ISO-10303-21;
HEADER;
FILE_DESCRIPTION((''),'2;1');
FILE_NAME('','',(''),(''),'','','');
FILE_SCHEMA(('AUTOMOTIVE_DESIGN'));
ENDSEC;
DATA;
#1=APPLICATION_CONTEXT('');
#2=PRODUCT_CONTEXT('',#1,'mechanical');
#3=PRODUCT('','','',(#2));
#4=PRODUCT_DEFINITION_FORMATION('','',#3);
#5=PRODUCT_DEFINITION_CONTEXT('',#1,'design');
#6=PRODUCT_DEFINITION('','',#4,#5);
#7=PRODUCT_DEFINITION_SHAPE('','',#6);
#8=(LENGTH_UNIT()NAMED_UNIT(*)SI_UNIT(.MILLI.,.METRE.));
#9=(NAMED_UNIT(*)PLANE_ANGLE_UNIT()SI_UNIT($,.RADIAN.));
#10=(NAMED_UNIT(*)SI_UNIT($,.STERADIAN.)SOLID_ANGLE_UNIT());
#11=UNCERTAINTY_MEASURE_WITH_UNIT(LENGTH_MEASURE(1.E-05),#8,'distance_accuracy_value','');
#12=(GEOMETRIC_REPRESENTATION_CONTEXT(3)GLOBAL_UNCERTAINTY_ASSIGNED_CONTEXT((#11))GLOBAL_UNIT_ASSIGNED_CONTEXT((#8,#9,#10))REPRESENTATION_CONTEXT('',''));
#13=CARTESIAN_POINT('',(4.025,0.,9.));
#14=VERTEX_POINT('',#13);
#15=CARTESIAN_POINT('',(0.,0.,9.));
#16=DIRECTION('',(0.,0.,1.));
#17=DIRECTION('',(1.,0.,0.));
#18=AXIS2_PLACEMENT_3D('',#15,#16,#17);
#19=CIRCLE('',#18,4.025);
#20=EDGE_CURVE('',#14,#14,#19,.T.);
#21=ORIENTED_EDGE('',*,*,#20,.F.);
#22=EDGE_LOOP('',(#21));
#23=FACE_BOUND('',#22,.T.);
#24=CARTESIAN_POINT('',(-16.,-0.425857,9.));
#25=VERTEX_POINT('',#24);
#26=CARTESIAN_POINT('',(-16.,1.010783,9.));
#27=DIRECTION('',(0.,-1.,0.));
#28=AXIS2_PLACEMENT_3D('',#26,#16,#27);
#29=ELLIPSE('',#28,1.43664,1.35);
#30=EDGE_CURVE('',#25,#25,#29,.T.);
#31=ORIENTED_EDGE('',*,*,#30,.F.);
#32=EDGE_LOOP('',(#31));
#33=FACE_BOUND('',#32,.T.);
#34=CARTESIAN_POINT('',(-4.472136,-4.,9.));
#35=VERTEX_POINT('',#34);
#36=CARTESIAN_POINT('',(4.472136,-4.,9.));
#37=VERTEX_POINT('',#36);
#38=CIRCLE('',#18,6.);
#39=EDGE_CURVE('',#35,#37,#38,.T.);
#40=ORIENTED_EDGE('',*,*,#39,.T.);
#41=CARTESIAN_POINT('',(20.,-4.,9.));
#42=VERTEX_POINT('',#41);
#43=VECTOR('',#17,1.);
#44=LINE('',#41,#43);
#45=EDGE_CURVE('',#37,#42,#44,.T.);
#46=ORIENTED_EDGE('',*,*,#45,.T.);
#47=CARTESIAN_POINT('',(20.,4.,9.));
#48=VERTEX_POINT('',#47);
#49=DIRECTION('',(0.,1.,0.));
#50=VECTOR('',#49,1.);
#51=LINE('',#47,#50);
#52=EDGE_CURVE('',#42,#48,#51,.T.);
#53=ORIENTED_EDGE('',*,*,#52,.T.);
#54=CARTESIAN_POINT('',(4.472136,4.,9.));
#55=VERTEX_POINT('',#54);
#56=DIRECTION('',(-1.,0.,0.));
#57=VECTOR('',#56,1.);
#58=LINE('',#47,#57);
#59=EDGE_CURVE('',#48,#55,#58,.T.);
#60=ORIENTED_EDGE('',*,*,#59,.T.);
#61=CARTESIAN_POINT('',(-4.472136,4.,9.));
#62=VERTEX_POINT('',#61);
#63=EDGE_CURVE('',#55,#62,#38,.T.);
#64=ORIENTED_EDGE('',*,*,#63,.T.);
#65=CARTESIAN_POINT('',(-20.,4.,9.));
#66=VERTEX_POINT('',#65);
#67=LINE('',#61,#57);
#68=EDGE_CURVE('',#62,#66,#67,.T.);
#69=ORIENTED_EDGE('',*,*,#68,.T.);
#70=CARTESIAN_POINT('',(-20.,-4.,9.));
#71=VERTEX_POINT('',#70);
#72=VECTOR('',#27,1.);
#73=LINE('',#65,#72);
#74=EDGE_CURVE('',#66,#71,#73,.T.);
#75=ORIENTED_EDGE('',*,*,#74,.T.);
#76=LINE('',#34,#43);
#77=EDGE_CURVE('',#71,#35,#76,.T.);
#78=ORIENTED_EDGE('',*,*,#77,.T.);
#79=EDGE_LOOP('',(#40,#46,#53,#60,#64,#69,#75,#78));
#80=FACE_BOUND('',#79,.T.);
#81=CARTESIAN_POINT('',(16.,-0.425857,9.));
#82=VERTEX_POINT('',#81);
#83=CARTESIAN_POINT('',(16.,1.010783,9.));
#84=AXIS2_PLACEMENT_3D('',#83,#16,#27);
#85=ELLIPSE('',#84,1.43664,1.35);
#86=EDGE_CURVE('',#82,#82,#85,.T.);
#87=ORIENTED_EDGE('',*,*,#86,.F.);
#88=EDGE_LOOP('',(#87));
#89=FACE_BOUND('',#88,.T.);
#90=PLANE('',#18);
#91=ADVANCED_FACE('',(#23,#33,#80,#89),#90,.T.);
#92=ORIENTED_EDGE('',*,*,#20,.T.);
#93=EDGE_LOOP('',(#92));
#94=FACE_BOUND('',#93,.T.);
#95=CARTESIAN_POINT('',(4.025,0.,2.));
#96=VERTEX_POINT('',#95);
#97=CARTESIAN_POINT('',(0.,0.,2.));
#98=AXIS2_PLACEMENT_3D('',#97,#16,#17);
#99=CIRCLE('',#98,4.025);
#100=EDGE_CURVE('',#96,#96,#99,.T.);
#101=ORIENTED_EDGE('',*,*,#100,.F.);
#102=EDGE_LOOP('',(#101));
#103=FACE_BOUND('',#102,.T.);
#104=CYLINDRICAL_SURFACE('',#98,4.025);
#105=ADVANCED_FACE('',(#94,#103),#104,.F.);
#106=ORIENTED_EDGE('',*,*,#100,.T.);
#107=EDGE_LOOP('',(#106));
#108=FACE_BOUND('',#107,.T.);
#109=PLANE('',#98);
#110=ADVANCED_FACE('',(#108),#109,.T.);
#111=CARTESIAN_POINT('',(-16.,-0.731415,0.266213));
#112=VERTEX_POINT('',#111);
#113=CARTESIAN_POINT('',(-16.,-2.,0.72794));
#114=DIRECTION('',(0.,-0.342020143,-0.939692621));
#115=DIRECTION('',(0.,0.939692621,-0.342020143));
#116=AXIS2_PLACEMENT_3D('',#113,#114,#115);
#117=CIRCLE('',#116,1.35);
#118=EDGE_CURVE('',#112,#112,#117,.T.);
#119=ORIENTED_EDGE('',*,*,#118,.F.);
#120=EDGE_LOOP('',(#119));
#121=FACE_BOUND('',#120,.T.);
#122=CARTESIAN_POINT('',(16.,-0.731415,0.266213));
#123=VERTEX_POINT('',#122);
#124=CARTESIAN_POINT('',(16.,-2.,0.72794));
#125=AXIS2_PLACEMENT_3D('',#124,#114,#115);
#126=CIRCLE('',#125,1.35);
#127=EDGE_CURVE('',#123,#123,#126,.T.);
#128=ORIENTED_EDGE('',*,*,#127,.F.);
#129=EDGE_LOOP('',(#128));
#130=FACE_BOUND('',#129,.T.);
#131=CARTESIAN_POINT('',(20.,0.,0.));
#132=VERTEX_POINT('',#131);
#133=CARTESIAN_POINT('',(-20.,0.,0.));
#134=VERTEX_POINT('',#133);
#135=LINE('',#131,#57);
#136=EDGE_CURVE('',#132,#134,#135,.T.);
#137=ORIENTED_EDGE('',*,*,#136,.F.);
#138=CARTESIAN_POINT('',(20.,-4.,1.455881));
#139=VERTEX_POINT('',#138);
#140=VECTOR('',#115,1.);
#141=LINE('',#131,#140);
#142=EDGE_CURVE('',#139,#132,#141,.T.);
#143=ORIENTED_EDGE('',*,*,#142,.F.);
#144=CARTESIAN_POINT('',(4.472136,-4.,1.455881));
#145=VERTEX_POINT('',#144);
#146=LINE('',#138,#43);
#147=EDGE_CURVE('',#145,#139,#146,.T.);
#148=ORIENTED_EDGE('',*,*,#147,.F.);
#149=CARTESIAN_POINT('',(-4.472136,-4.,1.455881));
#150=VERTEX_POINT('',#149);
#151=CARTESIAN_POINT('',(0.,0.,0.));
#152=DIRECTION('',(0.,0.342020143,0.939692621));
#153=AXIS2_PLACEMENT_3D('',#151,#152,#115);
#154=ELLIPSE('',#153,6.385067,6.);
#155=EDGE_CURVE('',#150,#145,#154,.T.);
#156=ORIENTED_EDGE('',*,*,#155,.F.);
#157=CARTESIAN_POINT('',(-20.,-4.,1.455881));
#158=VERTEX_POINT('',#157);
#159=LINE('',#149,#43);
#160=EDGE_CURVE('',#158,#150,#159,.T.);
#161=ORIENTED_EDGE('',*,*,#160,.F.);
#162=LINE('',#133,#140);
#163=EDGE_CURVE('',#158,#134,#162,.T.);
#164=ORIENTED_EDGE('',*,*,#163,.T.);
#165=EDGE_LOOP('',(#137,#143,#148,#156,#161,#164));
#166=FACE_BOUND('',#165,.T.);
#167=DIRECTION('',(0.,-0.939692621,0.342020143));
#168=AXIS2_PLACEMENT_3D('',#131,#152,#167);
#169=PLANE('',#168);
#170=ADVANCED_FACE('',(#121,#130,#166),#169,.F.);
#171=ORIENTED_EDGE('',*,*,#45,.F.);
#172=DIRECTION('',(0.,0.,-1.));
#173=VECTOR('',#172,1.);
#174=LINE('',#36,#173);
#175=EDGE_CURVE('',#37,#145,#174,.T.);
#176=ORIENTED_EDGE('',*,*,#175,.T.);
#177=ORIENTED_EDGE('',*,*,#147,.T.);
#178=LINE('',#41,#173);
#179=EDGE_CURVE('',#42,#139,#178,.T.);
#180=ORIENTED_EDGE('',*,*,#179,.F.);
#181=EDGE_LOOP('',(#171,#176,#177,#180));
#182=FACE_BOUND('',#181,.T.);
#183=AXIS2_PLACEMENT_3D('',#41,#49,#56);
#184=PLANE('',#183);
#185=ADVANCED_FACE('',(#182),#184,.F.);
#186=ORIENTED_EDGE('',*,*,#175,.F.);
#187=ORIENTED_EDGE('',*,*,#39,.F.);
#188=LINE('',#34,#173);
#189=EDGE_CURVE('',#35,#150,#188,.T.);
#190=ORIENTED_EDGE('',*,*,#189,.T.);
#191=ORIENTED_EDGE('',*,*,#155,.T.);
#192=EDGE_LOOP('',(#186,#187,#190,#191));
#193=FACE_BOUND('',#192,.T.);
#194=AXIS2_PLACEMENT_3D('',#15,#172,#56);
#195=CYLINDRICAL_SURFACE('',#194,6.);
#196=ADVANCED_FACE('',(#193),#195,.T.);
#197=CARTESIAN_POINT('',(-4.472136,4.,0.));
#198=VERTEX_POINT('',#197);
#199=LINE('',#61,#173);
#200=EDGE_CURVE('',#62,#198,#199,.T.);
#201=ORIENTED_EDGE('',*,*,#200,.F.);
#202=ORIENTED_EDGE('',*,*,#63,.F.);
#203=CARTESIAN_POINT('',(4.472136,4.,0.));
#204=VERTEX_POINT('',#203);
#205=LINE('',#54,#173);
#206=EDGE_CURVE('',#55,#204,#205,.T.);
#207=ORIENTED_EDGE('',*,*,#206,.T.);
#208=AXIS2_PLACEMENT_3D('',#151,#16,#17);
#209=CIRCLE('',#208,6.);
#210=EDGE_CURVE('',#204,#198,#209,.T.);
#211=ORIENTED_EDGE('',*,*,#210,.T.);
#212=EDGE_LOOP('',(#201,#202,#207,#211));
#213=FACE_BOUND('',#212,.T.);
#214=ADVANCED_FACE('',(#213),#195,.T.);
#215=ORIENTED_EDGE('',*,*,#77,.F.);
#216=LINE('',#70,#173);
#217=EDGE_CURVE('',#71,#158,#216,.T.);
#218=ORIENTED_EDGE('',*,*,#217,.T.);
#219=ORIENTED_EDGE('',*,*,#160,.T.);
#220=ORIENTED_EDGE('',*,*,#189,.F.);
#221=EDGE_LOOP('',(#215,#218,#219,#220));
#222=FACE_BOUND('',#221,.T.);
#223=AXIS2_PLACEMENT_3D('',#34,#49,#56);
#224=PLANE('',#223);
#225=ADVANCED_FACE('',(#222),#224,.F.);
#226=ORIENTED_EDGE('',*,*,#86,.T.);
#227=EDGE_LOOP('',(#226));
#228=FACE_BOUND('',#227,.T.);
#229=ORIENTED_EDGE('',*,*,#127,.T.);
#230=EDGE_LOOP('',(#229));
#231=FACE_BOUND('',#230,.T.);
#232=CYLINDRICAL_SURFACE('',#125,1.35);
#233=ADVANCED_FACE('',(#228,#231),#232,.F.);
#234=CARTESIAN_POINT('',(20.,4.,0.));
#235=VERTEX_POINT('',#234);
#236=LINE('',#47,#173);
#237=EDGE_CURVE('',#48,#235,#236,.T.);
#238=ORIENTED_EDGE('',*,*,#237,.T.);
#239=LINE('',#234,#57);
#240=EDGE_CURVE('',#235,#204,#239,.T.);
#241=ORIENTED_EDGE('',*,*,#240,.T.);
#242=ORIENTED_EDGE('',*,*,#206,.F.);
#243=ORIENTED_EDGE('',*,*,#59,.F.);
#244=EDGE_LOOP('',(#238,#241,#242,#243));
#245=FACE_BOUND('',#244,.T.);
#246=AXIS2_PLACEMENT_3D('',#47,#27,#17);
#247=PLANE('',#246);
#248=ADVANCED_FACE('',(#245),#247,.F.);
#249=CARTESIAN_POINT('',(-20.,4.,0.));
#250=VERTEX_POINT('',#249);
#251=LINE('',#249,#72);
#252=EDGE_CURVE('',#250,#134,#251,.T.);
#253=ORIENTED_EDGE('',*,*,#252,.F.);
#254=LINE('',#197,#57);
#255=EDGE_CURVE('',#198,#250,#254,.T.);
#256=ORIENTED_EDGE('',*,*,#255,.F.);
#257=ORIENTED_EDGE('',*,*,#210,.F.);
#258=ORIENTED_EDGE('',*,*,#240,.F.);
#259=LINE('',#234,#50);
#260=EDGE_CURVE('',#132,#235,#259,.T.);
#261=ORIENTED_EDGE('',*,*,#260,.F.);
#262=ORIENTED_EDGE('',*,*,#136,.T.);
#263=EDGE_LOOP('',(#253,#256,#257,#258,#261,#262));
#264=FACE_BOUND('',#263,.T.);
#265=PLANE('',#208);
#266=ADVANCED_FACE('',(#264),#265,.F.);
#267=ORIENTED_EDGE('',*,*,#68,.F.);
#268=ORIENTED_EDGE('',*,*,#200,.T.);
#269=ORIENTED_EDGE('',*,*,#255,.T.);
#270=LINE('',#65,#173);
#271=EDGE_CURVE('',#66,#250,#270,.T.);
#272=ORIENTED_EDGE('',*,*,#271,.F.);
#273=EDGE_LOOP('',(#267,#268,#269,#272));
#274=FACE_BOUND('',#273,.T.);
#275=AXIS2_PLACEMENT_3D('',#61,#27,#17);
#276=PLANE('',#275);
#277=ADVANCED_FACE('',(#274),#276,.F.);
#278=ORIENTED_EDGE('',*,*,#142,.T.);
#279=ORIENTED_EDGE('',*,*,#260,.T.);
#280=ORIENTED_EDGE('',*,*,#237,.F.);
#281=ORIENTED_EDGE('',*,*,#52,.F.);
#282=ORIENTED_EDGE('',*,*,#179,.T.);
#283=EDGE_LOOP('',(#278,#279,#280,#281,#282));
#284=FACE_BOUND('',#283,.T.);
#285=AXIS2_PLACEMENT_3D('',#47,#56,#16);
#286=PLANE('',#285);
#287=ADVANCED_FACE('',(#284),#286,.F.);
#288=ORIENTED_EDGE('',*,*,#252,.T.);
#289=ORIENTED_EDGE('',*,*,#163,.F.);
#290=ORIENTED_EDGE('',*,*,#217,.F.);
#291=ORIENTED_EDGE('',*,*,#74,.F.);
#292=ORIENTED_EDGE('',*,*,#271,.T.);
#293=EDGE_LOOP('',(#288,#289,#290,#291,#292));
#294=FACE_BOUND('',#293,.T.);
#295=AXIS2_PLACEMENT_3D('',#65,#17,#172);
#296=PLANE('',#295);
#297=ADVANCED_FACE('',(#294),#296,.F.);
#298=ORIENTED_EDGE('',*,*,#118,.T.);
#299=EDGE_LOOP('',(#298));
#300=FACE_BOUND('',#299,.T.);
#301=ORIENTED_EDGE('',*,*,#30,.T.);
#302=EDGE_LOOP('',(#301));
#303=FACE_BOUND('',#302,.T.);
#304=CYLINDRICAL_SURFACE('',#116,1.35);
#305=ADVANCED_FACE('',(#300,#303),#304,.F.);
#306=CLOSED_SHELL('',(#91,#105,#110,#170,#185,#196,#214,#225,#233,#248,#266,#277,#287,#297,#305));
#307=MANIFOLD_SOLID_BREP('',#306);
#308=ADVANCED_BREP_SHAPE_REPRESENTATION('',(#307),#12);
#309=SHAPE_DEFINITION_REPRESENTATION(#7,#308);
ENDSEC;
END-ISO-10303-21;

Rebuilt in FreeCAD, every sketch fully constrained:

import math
import FreeCAD as App
import Part
import Sketcher
Q = App.Units.Quantity


def add_polygon(sketch, points):
    """Adds a closed chain of lines whose ends are joined by coincident constraints."""
    first, n = sketch.GeometryCount, len(points)
    for a, b in zip(points, points[1:] + points[:1]):
        sketch.addGeometry(Part.LineSegment(App.Vector(*a, 0), App.Vector(*b, 0)), False)
    for i in range(n):
        sketch.addConstraint(Sketcher.Constraint("Coincident", first + i, 2, first + (i + 1) % n, 1))

doc = App.newDocument("Part")
body = doc.addObject("PartDesign::Body", "Body")

# Sketch on XY plane
sketch1 = doc.addObject("Sketcher::SketchObject", "Sketch")
body.addObject(sketch1)
sketch1.AttachmentSupport = (doc.XY_Plane, [""])
sketch1.MapMode = "FlatFace"
sketch1.addGeometry(Part.LineSegment(App.Vector(-4.472136, 4, 0), App.Vector(-20, 4, 0)), False)
sketch1.addGeometry(Part.LineSegment(App.Vector(-20, 4, 0), App.Vector(-20, -4, 0)), False)
sketch1.addGeometry(Part.LineSegment(App.Vector(-20, -4, 0), App.Vector(-4.472136, -4, 0)), False)
sketch1.addGeometry(Part.ArcOfCircle(Part.Circle(App.Vector(0, 0, 0), App.Vector(0, 0, 1), 6), math.radians(-138.189685), math.radians(-41.810315)), False)
sketch1.addGeometry(Part.LineSegment(App.Vector(4.472136, -4, 0), App.Vector(20, -4, 0)), False)
sketch1.addGeometry(Part.LineSegment(App.Vector(20, -4, 0), App.Vector(20, 4, 0)), False)
sketch1.addGeometry(Part.LineSegment(App.Vector(20, 4, 0), App.Vector(4.472136, 4, 0)), False)
sketch1.addGeometry(Part.ArcOfCircle(Part.Circle(App.Vector(0, 0, 0), App.Vector(0, 0, 1), 6), math.radians(41.810315), math.radians(138.189685)), False)
sketch1.addConstraint(Sketcher.Constraint("Coincident", 0, 2, 1, 1))
sketch1.addConstraint(Sketcher.Constraint("Coincident", 1, 2, 2, 1))
sketch1.addConstraint(Sketcher.Constraint("Coincident", 2, 2, 3, 1))
sketch1.addConstraint(Sketcher.Constraint("Coincident", 3, 2, 4, 1))
sketch1.addConstraint(Sketcher.Constraint("Coincident", 4, 2, 5, 1))
sketch1.addConstraint(Sketcher.Constraint("Coincident", 5, 2, 6, 1))
sketch1.addConstraint(Sketcher.Constraint("Coincident", 6, 2, 7, 1))
sketch1.addConstraint(Sketcher.Constraint("Coincident", 7, 2, 0, 1))
sketch1.addConstraint(Sketcher.Constraint("Horizontal", 0))
sketch1.addConstraint(Sketcher.Constraint("Vertical", 1))
sketch1.addConstraint(Sketcher.Constraint("Horizontal", 2))
sketch1.addConstraint(Sketcher.Constraint("Horizontal", 4))
sketch1.addConstraint(Sketcher.Constraint("Vertical", 5))
sketch1.addConstraint(Sketcher.Constraint("Horizontal", 6))
sketch1.addConstraint(Sketcher.Constraint("Coincident", 3, 3, -1, 1))
sketch1.addConstraint(Sketcher.Constraint("Coincident", 7, 3, -1, 1))
sketch1.addConstraint(Sketcher.Constraint("Equal", 3, 7))
sketch1.addConstraint(Sketcher.Constraint("Symmetric", 0, 2, 4, 2, -1, 1))
sketch1.addConstraint(Sketcher.Constraint("Horizontal", 2, 2, 3, 2))
sketch1.addConstraint(Sketcher.Constraint("Horizontal", 0, 2, 5, 2))
sketch1.addConstraint(Sketcher.Constraint("Radius", 3, Q("6 mm")))
sketch1.addConstraint(Sketcher.Constraint("DistanceY", 1, 2, 1, 1, Q("8 mm")))
sketch1.addConstraint(Sketcher.Constraint("DistanceX", 0, 2, -1, 1, Q("20 mm")))
pad1 = doc.addObject("PartDesign::Pad", "Pad")
body.addObject(pad1)
pad1.Profile = sketch1
pad1.Length = 9

# Sketch on XY plane
sketch2 = doc.addObject("Sketcher::SketchObject", "Sketch001")
body.addObject(sketch2)
sketch2.AttachmentSupport = (doc.XY_Plane, [""])
sketch2.MapMode = "FlatFace"
sketch2.AttachmentOffset = App.Placement(App.Vector(0, 0, 9), App.Rotation())
sketch2.addGeometry(Part.Circle(App.Vector(0, 0, 0), App.Vector(0, 0, 1), 4.025), False)
sketch2.addConstraint(Sketcher.Constraint("Coincident", 0, 3, -1, 1))
sketch2.addConstraint(Sketcher.Constraint("Diameter", 0, Q("8.05 mm")))
pocket1 = doc.addObject("PartDesign::Pocket", "Pocket")
body.addObject(pocket1)
pocket1.Profile = sketch2
pocket1.Length = 7

# Sketch on YZ plane
sketch3 = doc.addObject("Sketcher::SketchObject", "Sketch002")
body.addObject(sketch3)
sketch3.AttachmentSupport = (doc.YZ_Plane, [""])
sketch3.MapMode = "FlatFace"
sketch3.AttachmentOffset = App.Placement(App.Vector(0, 0, -20), App.Rotation())
add_polygon(sketch3, [(-6, 2.183821), (0, 0), (-6, 0)])  # lines 0-2
sketch3.addConstraint(Sketcher.Constraint("Horizontal", 1))
sketch3.addConstraint(Sketcher.Constraint("Vertical", 2))
sketch3.addConstraint(Sketcher.Constraint("Coincident", 0, 2, -1, 1))
sketch3.addConstraint(Sketcher.Constraint("DistanceX", 1, 2, 1, 1, Q("6 mm")))
sketch3.addConstraint(Sketcher.Constraint("Angle", 0, Q("-20 deg")))
pocket2 = doc.addObject("PartDesign::Pocket", "Pocket001")
body.addObject(pocket2)
pocket2.Profile = sketch3
pocket2.Type = "ThroughAll"
pocket2.Reversed = True

# Sketch on an angled plane
sketch4 = doc.addObject("Sketcher::SketchObject", "Sketch003")
body.addObject(sketch4)
sketch4.Placement = App.Placement(App.Vector(0, 0, 0), App.Rotation(App.Vector(-1, 0, 0), App.Vector(0, 0.939692621, -0.342020143), App.Vector(0, -0.342020143, -0.939692621), "ZXY"))
sketch4.addGeometry(Part.Circle(App.Vector(-16, -2.128356, 0), App.Vector(0, 0, 1), 1.35), False)
sketch4.addGeometry(Part.Circle(App.Vector(16, -2.128356, 0), App.Vector(0, 0, 1), 1.35), False)
sketch4.addConstraint(Sketcher.Constraint("Equal", 0, 1))
sketch4.addConstraint(Sketcher.Constraint("Symmetric", 0, 3, 1, 3, -2))
sketch4.addConstraint(Sketcher.Constraint("Diameter", 0, Q("2.7 mm")))
sketch4.addConstraint(Sketcher.Constraint("DistanceX", 0, 3, -1, 1, Q("16 mm")))
sketch4.addConstraint(Sketcher.Constraint("DistanceY", 0, 3, -1, 1, Q("2.128356 mm")))
doc.recompute()
hole = doc.addObject("PartDesign::Hole", "Hole")
body.addObject(hole)
hole.Profile = sketch4
hole.ThreadType = "None"
hole.Diameter = 2.7
hole.DepthType = "ThroughAll"

doc.recompute()
